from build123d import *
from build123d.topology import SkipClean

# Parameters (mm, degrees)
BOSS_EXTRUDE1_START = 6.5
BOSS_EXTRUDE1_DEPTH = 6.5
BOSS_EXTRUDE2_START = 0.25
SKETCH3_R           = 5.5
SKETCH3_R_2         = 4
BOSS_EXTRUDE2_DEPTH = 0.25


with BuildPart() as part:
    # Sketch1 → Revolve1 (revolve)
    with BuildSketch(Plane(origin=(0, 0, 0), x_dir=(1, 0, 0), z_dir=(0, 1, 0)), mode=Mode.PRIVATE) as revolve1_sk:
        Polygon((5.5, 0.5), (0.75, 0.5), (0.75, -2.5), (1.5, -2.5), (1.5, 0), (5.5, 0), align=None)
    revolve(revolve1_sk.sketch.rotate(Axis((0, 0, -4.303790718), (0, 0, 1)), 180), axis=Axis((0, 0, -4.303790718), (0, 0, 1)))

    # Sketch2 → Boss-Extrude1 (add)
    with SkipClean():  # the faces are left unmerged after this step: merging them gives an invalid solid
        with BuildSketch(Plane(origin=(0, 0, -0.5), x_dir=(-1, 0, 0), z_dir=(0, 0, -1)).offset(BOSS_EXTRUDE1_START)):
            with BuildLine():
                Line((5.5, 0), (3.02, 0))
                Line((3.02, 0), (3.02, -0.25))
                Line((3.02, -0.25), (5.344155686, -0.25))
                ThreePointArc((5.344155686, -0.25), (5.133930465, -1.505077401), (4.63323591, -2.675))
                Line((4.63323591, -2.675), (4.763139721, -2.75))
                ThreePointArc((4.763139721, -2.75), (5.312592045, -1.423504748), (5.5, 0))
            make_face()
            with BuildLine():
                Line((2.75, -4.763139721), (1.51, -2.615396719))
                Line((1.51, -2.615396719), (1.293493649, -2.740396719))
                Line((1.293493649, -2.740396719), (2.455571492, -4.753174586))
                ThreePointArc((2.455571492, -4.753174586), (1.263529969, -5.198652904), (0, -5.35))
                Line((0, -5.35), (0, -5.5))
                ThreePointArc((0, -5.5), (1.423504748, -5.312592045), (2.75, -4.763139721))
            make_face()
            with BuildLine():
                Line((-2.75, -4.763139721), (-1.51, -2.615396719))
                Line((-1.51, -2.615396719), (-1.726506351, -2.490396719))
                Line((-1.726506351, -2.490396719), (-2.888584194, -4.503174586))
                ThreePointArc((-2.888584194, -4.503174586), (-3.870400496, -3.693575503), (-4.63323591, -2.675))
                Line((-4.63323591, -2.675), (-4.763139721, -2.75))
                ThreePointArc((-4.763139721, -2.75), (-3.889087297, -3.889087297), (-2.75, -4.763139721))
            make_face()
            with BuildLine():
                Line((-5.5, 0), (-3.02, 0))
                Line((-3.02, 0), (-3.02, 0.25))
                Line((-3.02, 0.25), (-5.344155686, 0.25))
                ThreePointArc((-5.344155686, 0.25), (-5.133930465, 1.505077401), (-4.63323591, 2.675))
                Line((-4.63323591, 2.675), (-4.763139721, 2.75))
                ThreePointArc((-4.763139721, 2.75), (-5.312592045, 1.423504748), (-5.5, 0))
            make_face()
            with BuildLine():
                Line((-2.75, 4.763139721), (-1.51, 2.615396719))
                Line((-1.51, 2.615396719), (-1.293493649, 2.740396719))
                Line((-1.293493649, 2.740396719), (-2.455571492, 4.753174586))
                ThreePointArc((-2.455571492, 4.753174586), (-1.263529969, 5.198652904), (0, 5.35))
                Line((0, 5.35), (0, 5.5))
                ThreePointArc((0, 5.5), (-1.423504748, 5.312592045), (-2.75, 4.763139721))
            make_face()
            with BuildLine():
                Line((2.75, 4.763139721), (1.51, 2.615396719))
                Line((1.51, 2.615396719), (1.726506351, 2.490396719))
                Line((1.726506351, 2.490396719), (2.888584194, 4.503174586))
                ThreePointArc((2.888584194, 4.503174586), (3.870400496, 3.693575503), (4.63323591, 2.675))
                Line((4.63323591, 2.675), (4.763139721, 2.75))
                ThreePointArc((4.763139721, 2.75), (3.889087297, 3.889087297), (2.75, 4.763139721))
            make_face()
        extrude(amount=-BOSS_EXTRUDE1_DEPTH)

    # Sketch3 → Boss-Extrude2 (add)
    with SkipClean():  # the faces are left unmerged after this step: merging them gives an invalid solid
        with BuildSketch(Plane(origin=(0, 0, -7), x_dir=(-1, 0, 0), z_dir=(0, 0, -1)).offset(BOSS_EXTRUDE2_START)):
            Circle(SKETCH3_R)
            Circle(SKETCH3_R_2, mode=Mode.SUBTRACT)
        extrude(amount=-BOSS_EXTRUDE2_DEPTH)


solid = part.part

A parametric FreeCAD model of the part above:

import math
import FreeCAD as App
import Part
import Sketcher
from FreeCAD import Vector
Q = App.Units.Quantity


def add_polygon(sketch, points):
    """Adds a closed chain of lines whose ends are joined by coincident constraints."""
    first, n = sketch.GeometryCount, len(points)
    for a, b in zip(points, points[1:] + points[:1]):
        sketch.addGeometry(Part.LineSegment(App.Vector(*a, 0), App.Vector(*b, 0)), False)
    for i in range(n):
        sketch.addConstraint(Sketcher.Constraint("Coincident", first + i, 2, first + (i + 1) % n, 1))

doc = App.newDocument("Part")
body = doc.addObject("PartDesign::Body", "Body")

# Sketch on XZ plane
sketch1 = body.newObject("Sketcher::SketchObject", "Sketch")
sketch1.AttachmentSupport = (doc.getObject("XZ_Plane"), [""])
sketch1.MapMode = "FlatFace"
add_polygon(sketch1, [(5.5, -0.5), (0.8, -0.5), (0.8, 2.5), (1.5, 2.5), (1.5, 0), (5.5, 0)])  # lines 0-5
sketch1.addConstraint(Sketcher.Constraint("Horizontal", 0))
sketch1.addConstraint(Sketcher.Constraint("Vertical", 1))
sketch1.addConstraint(Sketcher.Constraint("Horizontal", 2))
sketch1.addConstraint(Sketcher.Constraint("Vertical", 3))
sketch1.addConstraint(Sketcher.Constraint("Horizontal", 4))
sketch1.addConstraint(Sketcher.Constraint("Vertical", 5))
sketch1.addConstraint(Sketcher.Constraint("PointOnObject", 3, 2, -1))
sketch1.addConstraint(Sketcher.Constraint("DistanceX", 4, 1, 4, 2, Q("4 mm")))
sketch1.addConstraint(Sketcher.Constraint("DistanceY", 1, 1, 1, 2, Q("3 mm")))
sketch1.addConstraint(Sketcher.Constraint("DistanceY", 3, 2, 3, 1, Q("2.5 mm")))
sketch1.addConstraint(Sketcher.Constraint("DistanceX", 0, 2, 0, 1, Q("4.75 mm")))
sketch1.addConstraint(Sketcher.Constraint("DistanceX", -1, 1, 2, 2, Q("1.5 mm")))
revolution = body.newObject("PartDesign::Revolution", "Revolution")
revolution.Profile = sketch1
revolution.ReferenceAxis = (sketch1, ["V_Axis"])
revolution.Angle = 360

# Sketch on XY plane
sketch2 = body.newObject("Sketcher::SketchObject", "Sketch001")
sketch2.AttachmentSupport = (doc.getObject("XY_Plane"), [""])
sketch2.MapMode = "FlatFace"
sketch2.AttachmentOffset = App.Placement(Vector(0, 0, -7), App.Rotation())
sketch2.addGeometry(Part.LineSegment(Vector(-5.5, 0, 0), Vector(-3.02, 0, 0)), False)
sketch2.addGeometry(Part.LineSegment(Vector(-3.02, 0, 0), Vector(-3.02, -0.25, 0)), False)
sketch2.addGeometry(Part.LineSegment(Vector(-3.02, -0.25, 0), Vector(-5.34, -0.25, 0)), False)
sketch2.addGeometry(Part.ArcOfCircle(Part.Circle(Vector(0, 0, 0), Vector(0, 0, 1), 5.35), math.radians(-177), math.radians(-150)), False)
sketch2.addGeometry(Part.LineSegment(Vector(-4.63, -2.67, 0), Vector(-4.76, -2.75, 0)), False)
sketch2.addGeometry(Part.ArcOfCircle(Part.Circle(Vector(0, 0, 0), Vector(0, 0, 1), 5.5), math.radians(180), math.radians(210)), False)
sketch2.addGeometry(Part.LineSegment(Vector(-2.75, -4.76, 0), Vector(-1.51, -2.62, 0)), False)
sketch2.addGeometry(Part.LineSegment(Vector(-1.51, -2.62, 0), Vector(-1.29, -2.74, 0)), False)
sketch2.addGeometry(Part.LineSegment(Vector(-1.29, -2.74, 0), Vector(-2.46, -4.75, 0)), False)
sketch2.addGeometry(Part.ArcOfCircle(Part.Circle(Vector(0, 0, 0), Vector(0, 0, 1), 5.35), math.radians(-117), math.radians(-90)), False)
sketch2.addGeometry(Part.LineSegment(Vector(0, -5.35, 0), Vector(0, -5.5, 0)), False)
sketch2.addGeometry(Part.ArcOfCircle(Part.Circle(Vector(0, 0, 0), Vector(0, 0, 1), 5.5), math.radians(-120), math.radians(-90)), False)
sketch2.addGeometry(Part.LineSegment(Vector(2.75, -4.76, 0), Vector(1.51, -2.62, 0)), False)
sketch2.addGeometry(Part.LineSegment(Vector(1.51, -2.62, 0), Vector(1.73, -2.49, 0)), False)
sketch2.addGeometry(Part.LineSegment(Vector(1.73, -2.49, 0), Vector(2.89, -4.5, 0)), False)
sketch2.addGeometry(Part.ArcOfCircle(Part.Circle(Vector(0, 0, 0), Vector(0, 0, 1), 5.35), math.radians(-57), math.radians(-30)), False)
sketch2.addGeometry(Part.LineSegment(Vector(4.63, -2.67, 0), Vector(4.76, -2.75, 0)), False)
sketch2.addGeometry(Part.ArcOfCircle(Part.Circle(Vector(0, 0, 0), Vector(0, 0, 1), 5.5), math.radians(-60), math.radians(-30)), False)
sketch2.addGeometry(Part.LineSegment(Vector(5.5, 0, 0), Vector(3.02, 0, 0)), False)
sketch2.addGeometry(Part.LineSegment(Vector(3.02, 0, 0), Vector(3.02, 0.25, 0)), False)
sketch2.addGeometry(Part.LineSegment(Vector(3.02, 0.25, 0), Vector(5.34, 0.25, 0)), False)
sketch2.addGeometry(Part.ArcOfCircle(Part.Circle(Vector(0, 0, 0), Vector(0, 0, 1), 5.35), math.radians(3), math.radians(30)), False)
sketch2.addGeometry(Part.LineSegment(Vector(4.63, 2.67, 0), Vector(4.76, 2.75, 0)), False)
sketch2.addGeometry(Part.ArcOfCircle(Part.Circle(Vector(0, 0, 0), Vector(0, 0, 1), 5.5), math.radians(0), math.radians(30)), False)
sketch2.addGeometry(Part.LineSegment(Vector(2.75, 4.76, 0), Vector(1.51, 2.62, 0)), False)
sketch2.addGeometry(Part.LineSegment(Vector(1.51, 2.62, 0), Vector(1.29, 2.74, 0)), False)
sketch2.addGeometry(Part.LineSegment(Vector(1.29, 2.74, 0), Vector(2.46, 4.75, 0)), False)
sketch2.addGeometry(Part.ArcOfCircle(Part.Circle(Vector(0, 0, 0), Vector(0, 0, 1), 5.35), math.radians(63), math.radians(90)), False)
sketch2.addGeometry(Part.LineSegment(Vector(0, 5.35, 0), Vector(0, 5.5, 0)), False)
sketch2.addGeometry(Part.ArcOfCircle(Part.Circle(Vector(0, 0, 0), Vector(0, 0, 1), 5.5), math.radians(60), math.radians(90)), False)
sketch2.addGeometry(Part.LineSegment(Vector(-2.75, 4.76, 0), Vector(-1.51, 2.62, 0)), False)
sketch2.addGeometry(Part.LineSegment(Vector(-1.51, 2.62, 0), Vector(-1.73, 2.49, 0)), False)
sketch2.addGeometry(Part.LineSegment(Vector(-1.73, 2.49, 0), Vector(-2.89, 4.5, 0)), False)
sketch2.addGeometry(Part.ArcOfCircle(Part.Circle(Vector(0, 0, 0), Vector(0, 0, 1), 5.35), math.radians(123), math.radians(150)), False)
sketch2.addGeometry(Part.LineSegment(Vector(-4.63, 2.67, 0), Vector(-4.76, 2.75, 0)), False)
sketch2.addGeometry(Part.ArcOfCircle(Part.Circle(Vector(0, 0, 0), Vector(0, 0, 1), 5.5), math.radians(120), math.radians(150)), False)
sketch2.addConstraint(Sketcher.Constraint("Coincident", 0, 2, 1, 1))
sketch2.addConstraint(Sketcher.Constraint("Coincident", 1, 2, 2, 1))
sketch2.addConstraint(Sketcher.Constraint("Coincident", 2, 2, 3, 1))
sketch2.addConstraint(Sketcher.Constraint("Coincident", 3, 2, 4, 1))
sketch2.addConstraint(Sketcher.Constraint("Coincident", 4, 2, 5, 2))
sketch2.addConstraint(Sketcher.Constraint("Coincident", 5, 1, 0, 1))
sketch2.addConstraint(Sketcher.Constraint("Coincident", 6, 2, 7, 1))
sketch2.addConstraint(Sketcher.Constraint("Coincident", 7, 2, 8, 1))
sketch2.addConstraint(Sketcher.Constraint("Coincident", 8, 2, 9, 1))
sketch2.addConstraint(Sketcher.Constraint("Coincident", 9, 2, 10, 1))
sketch2.addConstraint(Sketcher.Constraint("Coincident", 10, 2, 11, 2))
sketch2.addConstraint(Sketcher.Constraint("Coincident", 11, 1, 6, 1))
sketch2.addConstraint(Sketcher.Constraint("Coincident", 12, 2, 13, 1))
sketch2.addConstraint(Sketcher.Constraint("Coincident", 13, 2, 14, 1))
sketch2.addConstraint(Sketcher.Constraint("Coincident", 14, 2, 15, 1))
sketch2.addConstraint(Sketcher.Constraint("Coincident", 15, 2, 16, 1))
sketch2.addConstraint(Sketcher.Constraint("Coincident", 16, 2, 17, 2))
sketch2.addConstraint(Sketcher.Constraint("Coincident", 17, 1, 12, 1))
sketch2.addConstraint(Sketcher.Constraint("Coincident", 18, 2, 19, 1))
sketch2.addConstraint(Sketcher.Constraint("Coincident", 19, 2, 20, 1))
sketch2.addConstraint(Sketcher.Constraint("Coincident", 20, 2, 21, 1))
sketch2.addConstraint(Sketcher.Constraint("Coincident", 21, 2, 22, 1))
sketch2.addConstraint(Sketcher.Constraint("Coincident", 22, 2, 23, 2))
sketch2.addConstraint(Sketcher.Constraint("Coincident", 23, 1, 18, 1))
sketch2.addConstraint(Sketcher.Constraint("Coincident", 24, 2, 25, 1))
sketch2.addConstraint(Sketcher.Constraint("Coincident", 25, 2, 26, 1))
sketch2.addConstraint(Sketcher.Constraint("Coincident", 26, 2, 27, 1))
sketch2.addConstraint(Sketcher.Constraint("Coincident", 27, 2, 28, 1))
sketch2.addConstraint(Sketcher.Constraint("Coincident", 28, 2, 29, 2))
sketch2.addConstraint(Sketcher.Constraint("Coincident", 29, 1, 24, 1))
sketch2.addConstraint(Sketcher.Constraint("Coincident", 30, 2, 31, 1))
sketch2.addConstraint(Sketcher.Constraint("Coincident", 31, 2, 32, 1))
sketch2.addConstraint(Sketcher.Constraint("Coincident", 32, 2, 33, 1))
sketch2.addConstraint(Sketcher.Constraint("Coincident", 33, 2, 34, 1))
sketch2.addConstraint(Sketcher.Constraint("Coincident", 34, 2, 35, 2))
sketch2.addConstraint(Sketcher.Constraint("Coincident", 35, 1, 30, 1))
sketch2.addConstraint(Sketcher.Constraint("Horizontal", 0))
sketch2.addConstraint(Sketcher.Constraint("Vertical", 1))
sketch2.addConstraint(Sketcher.Constraint("Horizontal", 2))
sketch2.addConstraint(Sketcher.Constraint("Vertical", 10))
sketch2.addConstraint(Sketcher.Constraint("Horizontal", 18))
sketch2.addConstraint(Sketcher.Constraint("Vertical", 19))
sketch2.addConstraint(Sketcher.Constraint("Horizontal", 20))
sketch2.addConstraint(Sketcher.Constraint("Vertical", 28))
sketch2.addConstraint(Sketcher.Constraint("Coincident", 3, 3, -1, 1))
sketch2.addConstraint(Sketcher.Constraint("Coincident", 5, 3, -1, 1))
sketch2.addConstraint(Sketcher.Constraint("Coincident", 9, 3, -1, 1))
sketch2.addConstraint(Sketcher.Constraint("Coincident", 11, 3, -1, 1))
sketch2.addConstraint(Sketcher.Constraint("Coincident", 15, 3, -1, 1))
sketch2.addConstraint(Sketcher.Constraint("Coincident", 17, 3, -1, 1))
sketch2.addConstraint(Sketcher.Constraint("Coincident", 21, 3, -1, 1))
sketch2.addConstraint(Sketcher.Constraint("Coincident", 23, 3, -1, 1))
sketch2.addConstraint(Sketcher.Constraint("Coincident", 27, 3, -1, 1))
sketch2.addConstraint(Sketcher.Constraint("Coincident", 29, 3, -1, 1))
sketch2.addConstraint(Sketcher.Constraint("Coincident", 33, 3, -1, 1))
sketch2.addConstraint(Sketcher.Constraint("Coincident", 35, 3, -1, 1))
sketch2.addConstraint(Sketcher.Constraint("Equal", 3, 9))
sketch2.addConstraint(Sketcher.Constraint("Equal", 5, 11))
sketch2.addConstraint(Sketcher.Constraint("Equal", 9, 15))
sketch2.addConstraint(Sketcher.Constraint("Equal", 11, 17))
sketch2.addConstraint(Sketcher.Constraint("Equal", 15, 21))
sketch2.addConstraint(Sketcher.Constraint("Equal", 17, 23))
sketch2.addConstraint(Sketcher.Constraint("Equal", 21, 27))
sketch2.addConstraint(Sketcher.Constraint("Equal", 23, 29))
sketch2.addConstraint(Sketcher.Constraint("Equal", 27, 33))
sketch2.addConstraint(Sketcher.Constraint("Equal", 29, 35))
sketch2.addConstraint(Sketcher.Constraint("Symmetric", 0, 2, 18, 2, -1, 1))
sketch2.addConstraint(Sketcher.Constraint("Symmetric", 6, 2, 24, 2, -1, 1))
sketch2.addConstraint(Sketcher.Constraint("Symmetric", 7, 2, 25, 2, -1, 1))
sketch2.addConstraint(Sketcher.Constraint("Symmetric", 12, 2, 30, 2, -1, 1))
sketch2.addConstraint(Sketcher.Constraint("Symmetric", 13, 2, 31, 2, -1, 1))
sketch2.addConstraint(Sketcher.Constraint("Symmetric", 6, 2, 12, 2, -2))
sketch2.addConstraint(Sketcher.Constraint("PointOnObject", 0, 2, -1))
sketch2.addConstraint(Sketcher.Constraint("PointOnObject", 9, 2, -2))
sketch2.addConstraint(Sketcher.Constraint("PointOnObject", 27, 2, -2))
sketch2.addConstraint(Sketcher.Constraint("Perpendicular", 6, 7))
sketch2.addConstraint(Sketcher.Constraint("Perpendicular", 7, 8))
sketch2.addConstraint(Sketcher.Constraint("Perpendicular", 4, 12))
sketch2.addConstraint(Sketcher.Constraint("Perpendicular", 12, 13))
sketch2.addConstraint(Sketcher.Constraint("Perpendicular", 13, 14))
sketch2.addConstraint(Sketcher.Constraint("Perpendicular", 8, 16))
sketch2.addConstraint(Sketcher.Constraint("Perpendicular", 14, 22))
sketch2.addConstraint(Sketcher.Constraint("Perpendicular", 16, 24))
sketch2.addConstraint(Sketcher.Constraint("Perpendicular", 25, 26))
sketch2.addConstraint(Sketcher.Constraint("Perpendicular", 22, 30))
sketch2.addConstraint(Sketcher.Constraint("Perpendicular", 31, 32))
sketch2.addConstraint(Sketcher.Constraint("Perpendicular", 26, 34))
sketch2.addConstraint(Sketcher.Constraint("Horizontal", 3, 2, 15, 2))
sketch2.addConstraint(Sketcher.Constraint("Horizontal", 4, 2, 16, 2))
sketch2.addConstraint(Sketcher.Constraint("Horizontal", 21, 2, 33, 2))
sketch2.addConstraint(Sketcher.Constraint("Vertical", 15, 2, 21, 2))
sketch2.addConstraint(Sketcher.Constraint("Equal", 2, 20))
sketch2.addConstraint(Sketcher.Constraint("Equal", 7, 13))
sketch2.addConstraint(Sketcher.Constraint("Equal", 8, 14))
sketch2.addConstraint(Sketcher.Constraint("Radius", 5, Q("5.5 mm")))
sketch2.addConstraint(Sketcher.Constraint("Angle", 4, Q("-150 deg")))
sketch2.addConstraint(Sketcher.Constraint("Radius", 3, Q("5.35 mm")))
sketch2.addConstraint(Sketcher.Constraint("DistanceY", 16, 2, 20, 2, Q("3 mm")))
sketch2.addConstraint(Sketcher.Constraint("DistanceX", 0, 1, 0, 2, Q("2.48 mm")))
sketch2.addConstraint(Sketcher.Constraint("DistanceY", 1, 2, 1, 1, Q("0.25 mm")))
sketch2.addConstraint(Sketcher.Constraint("Distance", 6, Q("2.48 mm")))
sketch2.addConstraint(Sketcher.Constraint("Distance", 7, Q("0.25 mm")))
pad1 = body.newObject("PartDesign::Pad", "Pad")
pad1.Profile = sketch2
pad1.Length = 6.5

# Sketch on XY plane
sketch3 = body.newObject("Sketcher::SketchObject", "Sketch002")
sketch3.AttachmentSupport = (doc.getObject("XY_Plane"), [""])
sketch3.MapMode = "FlatFace"
sketch3.AttachmentOffset = App.Placement(Vector(0, 0, -7.25), App.Rotation())
sketch3.addGeometry(Part.Circle(Vector(0, 0, 0), Vector(0, 0, 1), 5.5), False)
sketch3.addGeometry(Part.Circle(Vector(0, 0, 0), Vector(0, 0, 1), 4), False)
sketch3.addConstraint(Sketcher.Constraint("Coincident", 0, 3, -1, 1))
sketch3.addConstraint(Sketcher.Constraint("Coincident", 1, 3, -1, 1))
sketch3.addConstraint(Sketcher.Constraint("Diameter", 0, Q("11 mm")))
sketch3.addConstraint(Sketcher.Constraint("Diameter", 1, Q("8 mm")))
pad2 = body.newObject("PartDesign::Pad", "Pad001")
pad2.Profile = sketch3
pad2.Length = 0.25

doc.recompute()
